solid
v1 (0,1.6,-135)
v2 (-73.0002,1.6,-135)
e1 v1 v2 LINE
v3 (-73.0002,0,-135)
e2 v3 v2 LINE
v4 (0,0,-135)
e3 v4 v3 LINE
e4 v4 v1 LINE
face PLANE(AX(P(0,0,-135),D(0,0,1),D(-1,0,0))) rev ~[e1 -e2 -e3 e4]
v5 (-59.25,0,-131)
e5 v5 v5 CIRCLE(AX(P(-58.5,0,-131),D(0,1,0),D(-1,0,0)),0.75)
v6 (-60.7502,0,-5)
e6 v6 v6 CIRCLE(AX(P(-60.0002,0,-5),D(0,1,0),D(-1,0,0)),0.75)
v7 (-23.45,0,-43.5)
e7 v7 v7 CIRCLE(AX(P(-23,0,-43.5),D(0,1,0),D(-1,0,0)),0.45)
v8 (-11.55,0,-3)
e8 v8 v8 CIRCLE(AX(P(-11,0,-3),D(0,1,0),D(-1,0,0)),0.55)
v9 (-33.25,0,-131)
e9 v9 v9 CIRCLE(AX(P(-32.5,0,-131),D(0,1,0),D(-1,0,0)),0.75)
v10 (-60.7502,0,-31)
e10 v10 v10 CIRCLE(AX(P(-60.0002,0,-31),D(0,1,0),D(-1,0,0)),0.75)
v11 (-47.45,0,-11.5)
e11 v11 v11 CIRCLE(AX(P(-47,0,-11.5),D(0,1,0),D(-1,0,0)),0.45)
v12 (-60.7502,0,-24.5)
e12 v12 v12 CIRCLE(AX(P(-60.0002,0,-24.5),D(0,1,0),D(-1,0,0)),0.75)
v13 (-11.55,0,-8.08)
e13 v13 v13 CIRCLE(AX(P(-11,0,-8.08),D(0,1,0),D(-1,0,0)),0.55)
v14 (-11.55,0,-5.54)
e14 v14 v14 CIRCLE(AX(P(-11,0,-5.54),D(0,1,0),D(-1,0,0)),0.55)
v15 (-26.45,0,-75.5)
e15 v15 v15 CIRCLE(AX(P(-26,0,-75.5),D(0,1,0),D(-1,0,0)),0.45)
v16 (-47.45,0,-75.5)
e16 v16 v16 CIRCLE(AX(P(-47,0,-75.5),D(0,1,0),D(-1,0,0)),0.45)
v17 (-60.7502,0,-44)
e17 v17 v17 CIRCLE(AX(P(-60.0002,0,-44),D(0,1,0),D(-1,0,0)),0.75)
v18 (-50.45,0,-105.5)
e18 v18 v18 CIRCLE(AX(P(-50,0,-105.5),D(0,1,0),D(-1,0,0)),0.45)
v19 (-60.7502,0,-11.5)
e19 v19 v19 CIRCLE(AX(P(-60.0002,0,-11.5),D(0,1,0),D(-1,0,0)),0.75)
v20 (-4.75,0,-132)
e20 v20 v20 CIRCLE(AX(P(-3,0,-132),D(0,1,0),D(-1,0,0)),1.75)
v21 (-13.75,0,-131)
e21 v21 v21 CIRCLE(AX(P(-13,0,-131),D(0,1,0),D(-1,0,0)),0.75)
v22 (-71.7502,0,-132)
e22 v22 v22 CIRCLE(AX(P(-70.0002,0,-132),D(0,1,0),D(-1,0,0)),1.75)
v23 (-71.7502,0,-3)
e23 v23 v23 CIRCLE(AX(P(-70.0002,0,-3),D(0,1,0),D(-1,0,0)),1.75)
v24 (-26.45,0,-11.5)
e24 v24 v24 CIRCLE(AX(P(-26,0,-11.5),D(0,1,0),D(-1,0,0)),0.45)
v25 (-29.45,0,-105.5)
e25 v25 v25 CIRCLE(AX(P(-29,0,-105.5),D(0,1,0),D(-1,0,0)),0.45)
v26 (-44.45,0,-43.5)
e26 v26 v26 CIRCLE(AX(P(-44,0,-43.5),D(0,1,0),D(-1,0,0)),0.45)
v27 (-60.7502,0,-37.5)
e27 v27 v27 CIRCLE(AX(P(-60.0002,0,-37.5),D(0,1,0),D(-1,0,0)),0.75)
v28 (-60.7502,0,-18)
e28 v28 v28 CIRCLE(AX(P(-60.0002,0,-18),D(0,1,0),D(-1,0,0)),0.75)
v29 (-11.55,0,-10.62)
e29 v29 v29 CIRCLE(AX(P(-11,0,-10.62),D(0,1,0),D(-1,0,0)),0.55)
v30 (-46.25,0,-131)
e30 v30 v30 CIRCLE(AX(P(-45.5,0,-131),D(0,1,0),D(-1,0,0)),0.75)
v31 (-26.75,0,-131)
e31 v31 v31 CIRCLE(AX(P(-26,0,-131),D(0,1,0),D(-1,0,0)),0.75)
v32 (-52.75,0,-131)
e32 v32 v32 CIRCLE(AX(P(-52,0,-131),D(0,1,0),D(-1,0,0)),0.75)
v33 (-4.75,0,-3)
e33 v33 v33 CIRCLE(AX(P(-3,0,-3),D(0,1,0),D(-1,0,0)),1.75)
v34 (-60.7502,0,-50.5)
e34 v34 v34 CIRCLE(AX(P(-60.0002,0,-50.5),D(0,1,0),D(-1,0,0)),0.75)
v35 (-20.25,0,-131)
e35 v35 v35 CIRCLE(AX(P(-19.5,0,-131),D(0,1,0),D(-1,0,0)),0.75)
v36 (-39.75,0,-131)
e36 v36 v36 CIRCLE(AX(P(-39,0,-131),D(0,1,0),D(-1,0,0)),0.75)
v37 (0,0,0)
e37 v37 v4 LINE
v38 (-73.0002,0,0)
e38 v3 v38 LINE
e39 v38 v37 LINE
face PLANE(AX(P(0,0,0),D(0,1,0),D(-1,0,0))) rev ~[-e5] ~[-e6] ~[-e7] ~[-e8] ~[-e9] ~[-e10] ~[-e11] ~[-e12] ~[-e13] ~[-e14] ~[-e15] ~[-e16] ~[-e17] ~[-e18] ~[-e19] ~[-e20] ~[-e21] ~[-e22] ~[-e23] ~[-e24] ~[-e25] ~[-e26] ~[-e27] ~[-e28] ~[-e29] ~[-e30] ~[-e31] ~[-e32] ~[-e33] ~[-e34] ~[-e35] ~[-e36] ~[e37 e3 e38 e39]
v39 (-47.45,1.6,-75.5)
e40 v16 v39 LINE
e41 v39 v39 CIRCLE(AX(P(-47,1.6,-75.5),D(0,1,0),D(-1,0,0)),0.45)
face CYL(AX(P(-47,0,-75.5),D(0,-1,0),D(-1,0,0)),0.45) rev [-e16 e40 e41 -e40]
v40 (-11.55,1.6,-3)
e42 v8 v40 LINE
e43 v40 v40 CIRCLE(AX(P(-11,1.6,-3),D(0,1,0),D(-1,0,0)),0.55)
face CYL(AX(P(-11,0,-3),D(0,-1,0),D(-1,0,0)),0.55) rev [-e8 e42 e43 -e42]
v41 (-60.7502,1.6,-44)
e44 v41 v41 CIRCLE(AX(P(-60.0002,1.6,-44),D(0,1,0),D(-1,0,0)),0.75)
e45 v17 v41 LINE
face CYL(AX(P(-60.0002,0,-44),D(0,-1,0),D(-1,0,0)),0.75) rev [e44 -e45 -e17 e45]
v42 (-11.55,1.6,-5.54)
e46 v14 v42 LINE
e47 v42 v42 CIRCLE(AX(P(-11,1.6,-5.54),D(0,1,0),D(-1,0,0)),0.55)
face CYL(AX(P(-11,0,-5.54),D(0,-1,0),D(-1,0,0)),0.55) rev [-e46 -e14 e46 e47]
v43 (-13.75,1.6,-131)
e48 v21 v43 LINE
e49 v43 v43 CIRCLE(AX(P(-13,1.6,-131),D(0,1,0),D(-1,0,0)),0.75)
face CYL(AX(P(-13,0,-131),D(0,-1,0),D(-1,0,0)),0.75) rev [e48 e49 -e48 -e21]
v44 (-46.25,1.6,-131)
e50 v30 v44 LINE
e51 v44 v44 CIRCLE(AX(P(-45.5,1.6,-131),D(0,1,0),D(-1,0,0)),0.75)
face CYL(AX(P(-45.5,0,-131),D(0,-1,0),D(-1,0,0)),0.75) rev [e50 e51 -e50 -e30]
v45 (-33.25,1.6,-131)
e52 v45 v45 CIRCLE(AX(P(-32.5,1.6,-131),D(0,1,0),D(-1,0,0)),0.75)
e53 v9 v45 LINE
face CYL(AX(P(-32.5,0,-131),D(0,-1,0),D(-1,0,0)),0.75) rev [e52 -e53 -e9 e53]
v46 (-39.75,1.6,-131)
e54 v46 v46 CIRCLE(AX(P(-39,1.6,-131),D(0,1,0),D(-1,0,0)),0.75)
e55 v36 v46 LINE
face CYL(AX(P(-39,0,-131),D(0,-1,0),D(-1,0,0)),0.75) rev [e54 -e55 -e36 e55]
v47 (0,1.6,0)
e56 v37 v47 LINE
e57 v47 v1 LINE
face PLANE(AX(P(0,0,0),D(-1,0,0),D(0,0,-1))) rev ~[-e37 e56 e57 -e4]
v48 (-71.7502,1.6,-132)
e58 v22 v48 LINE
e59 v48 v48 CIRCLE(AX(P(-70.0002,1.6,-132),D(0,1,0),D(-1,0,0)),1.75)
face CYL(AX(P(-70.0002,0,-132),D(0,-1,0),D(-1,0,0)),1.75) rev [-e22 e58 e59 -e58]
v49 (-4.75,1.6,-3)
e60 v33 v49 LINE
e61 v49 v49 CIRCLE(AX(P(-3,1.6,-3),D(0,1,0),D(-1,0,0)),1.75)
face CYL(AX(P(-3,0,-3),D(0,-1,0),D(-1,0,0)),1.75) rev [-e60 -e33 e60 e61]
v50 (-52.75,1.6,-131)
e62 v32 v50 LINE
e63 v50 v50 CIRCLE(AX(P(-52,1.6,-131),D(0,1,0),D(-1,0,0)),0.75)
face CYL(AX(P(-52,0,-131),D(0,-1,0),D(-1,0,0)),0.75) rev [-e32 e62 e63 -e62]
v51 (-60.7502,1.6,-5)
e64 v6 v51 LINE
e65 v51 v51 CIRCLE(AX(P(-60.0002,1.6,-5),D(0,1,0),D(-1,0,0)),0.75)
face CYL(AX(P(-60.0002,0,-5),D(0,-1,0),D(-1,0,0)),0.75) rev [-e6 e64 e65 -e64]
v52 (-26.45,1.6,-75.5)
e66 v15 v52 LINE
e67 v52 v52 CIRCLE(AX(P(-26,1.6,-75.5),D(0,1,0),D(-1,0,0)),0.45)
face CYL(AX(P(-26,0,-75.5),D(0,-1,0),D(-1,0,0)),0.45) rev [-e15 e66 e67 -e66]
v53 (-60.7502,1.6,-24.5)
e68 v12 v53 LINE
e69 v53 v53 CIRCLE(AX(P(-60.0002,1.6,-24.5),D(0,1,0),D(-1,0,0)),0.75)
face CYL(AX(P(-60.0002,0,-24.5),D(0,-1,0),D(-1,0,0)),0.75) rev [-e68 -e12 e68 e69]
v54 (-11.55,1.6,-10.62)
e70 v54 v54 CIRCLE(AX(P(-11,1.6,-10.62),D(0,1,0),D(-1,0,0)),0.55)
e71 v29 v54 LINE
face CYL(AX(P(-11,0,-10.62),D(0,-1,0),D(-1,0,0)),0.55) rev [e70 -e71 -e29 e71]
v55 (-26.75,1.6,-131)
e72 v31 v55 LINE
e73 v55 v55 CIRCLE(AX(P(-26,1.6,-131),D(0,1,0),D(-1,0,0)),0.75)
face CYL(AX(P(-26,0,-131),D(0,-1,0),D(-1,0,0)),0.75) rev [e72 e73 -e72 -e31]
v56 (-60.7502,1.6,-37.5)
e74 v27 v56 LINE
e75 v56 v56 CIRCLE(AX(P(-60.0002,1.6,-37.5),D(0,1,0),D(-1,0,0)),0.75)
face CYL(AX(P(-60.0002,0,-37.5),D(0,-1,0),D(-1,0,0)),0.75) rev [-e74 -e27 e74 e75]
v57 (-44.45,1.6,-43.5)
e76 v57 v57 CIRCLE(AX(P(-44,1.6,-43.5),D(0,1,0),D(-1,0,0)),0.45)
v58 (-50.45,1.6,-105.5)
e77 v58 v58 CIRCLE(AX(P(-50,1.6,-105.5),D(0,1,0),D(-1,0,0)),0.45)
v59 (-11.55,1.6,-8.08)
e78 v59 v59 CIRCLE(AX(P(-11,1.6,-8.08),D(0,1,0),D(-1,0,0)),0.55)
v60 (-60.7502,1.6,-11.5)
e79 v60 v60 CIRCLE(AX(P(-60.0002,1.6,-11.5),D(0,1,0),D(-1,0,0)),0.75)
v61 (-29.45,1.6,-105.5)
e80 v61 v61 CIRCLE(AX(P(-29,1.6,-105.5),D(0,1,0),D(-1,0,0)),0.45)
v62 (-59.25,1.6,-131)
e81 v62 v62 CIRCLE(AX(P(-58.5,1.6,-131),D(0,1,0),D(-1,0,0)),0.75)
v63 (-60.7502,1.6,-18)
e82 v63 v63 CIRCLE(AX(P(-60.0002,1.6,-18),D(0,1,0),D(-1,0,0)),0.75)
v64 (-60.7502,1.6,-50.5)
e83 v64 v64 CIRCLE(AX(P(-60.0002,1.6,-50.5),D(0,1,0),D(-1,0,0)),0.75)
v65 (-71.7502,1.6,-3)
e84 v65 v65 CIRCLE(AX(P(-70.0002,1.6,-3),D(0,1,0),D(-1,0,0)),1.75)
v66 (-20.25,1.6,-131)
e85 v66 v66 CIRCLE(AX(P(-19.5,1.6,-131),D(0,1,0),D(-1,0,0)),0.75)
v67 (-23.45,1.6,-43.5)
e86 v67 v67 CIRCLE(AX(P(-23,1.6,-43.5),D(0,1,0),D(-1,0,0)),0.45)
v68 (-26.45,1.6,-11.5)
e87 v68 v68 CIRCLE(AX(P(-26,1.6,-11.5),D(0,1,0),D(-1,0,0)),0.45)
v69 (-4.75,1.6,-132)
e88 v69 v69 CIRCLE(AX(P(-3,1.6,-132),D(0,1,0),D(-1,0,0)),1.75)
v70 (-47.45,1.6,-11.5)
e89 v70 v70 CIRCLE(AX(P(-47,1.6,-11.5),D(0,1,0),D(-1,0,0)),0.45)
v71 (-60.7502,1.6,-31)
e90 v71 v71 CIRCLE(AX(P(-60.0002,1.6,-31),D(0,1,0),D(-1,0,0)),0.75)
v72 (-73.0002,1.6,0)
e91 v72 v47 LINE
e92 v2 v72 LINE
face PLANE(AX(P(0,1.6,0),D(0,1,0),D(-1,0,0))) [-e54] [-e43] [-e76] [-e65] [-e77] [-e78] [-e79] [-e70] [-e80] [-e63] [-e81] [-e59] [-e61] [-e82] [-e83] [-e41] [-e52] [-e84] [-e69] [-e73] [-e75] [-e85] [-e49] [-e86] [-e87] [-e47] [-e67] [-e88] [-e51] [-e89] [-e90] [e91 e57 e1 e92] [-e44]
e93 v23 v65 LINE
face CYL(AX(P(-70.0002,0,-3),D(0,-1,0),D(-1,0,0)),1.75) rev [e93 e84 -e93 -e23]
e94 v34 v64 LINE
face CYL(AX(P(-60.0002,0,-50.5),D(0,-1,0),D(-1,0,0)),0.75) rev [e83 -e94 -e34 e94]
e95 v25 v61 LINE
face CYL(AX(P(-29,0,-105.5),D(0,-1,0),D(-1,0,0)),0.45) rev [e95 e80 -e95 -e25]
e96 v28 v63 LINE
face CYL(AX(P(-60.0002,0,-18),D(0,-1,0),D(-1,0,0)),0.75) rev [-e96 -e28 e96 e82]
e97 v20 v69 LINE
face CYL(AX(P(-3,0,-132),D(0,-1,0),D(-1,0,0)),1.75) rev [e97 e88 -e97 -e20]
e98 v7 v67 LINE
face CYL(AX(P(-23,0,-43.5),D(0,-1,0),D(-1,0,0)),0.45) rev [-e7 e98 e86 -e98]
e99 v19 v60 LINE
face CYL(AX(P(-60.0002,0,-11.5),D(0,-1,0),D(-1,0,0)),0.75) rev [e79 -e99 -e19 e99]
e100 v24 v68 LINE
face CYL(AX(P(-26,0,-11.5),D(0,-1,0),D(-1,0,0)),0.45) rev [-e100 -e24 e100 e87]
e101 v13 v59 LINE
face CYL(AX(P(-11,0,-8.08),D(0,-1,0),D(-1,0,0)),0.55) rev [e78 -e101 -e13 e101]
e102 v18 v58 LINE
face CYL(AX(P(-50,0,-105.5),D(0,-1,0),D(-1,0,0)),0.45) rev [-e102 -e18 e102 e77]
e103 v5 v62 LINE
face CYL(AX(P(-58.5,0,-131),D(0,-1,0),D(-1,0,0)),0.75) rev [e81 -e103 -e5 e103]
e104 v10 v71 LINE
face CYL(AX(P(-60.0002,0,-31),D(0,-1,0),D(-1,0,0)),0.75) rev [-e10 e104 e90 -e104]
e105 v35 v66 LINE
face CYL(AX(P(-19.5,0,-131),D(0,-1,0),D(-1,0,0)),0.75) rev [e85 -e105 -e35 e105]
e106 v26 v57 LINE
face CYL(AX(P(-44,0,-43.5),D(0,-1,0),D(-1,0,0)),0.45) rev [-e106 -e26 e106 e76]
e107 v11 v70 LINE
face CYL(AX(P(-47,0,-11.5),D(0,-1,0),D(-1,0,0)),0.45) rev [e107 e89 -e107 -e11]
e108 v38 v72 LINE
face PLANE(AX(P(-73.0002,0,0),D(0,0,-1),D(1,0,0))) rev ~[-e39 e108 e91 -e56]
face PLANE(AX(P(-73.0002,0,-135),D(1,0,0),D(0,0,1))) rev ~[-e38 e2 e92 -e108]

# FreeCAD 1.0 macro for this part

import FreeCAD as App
import Part
import Sketcher


def add_polygon(sketch, points):
    """Adds a closed chain of lines whose ends are joined by coincident constraints."""
    first, n = sketch.GeometryCount, len(points)
    for a, b in zip(points, points[1:] + points[:1]):
        sketch.addGeometry(Part.LineSegment(App.Vector(*a, 0), App.Vector(*b, 0)), False)
    for i in range(n):
        sketch.addConstraint(Sketcher.Constraint("Coincident", first + i, 2, first + (i + 1) % n, 1))

doc = App.newDocument("Part")
body = doc.addObject("PartDesign::Body", "Body")

sketch1 = body.newObject("Sketcher::SketchObject", "Sketch")
sketch1.AttachmentSupport = (doc.getObject("XZ_Plane"), [""])
sketch1.MapMode = "FlatFace"
add_polygon(sketch1, [(-73, 0), (0, 0), (0, -135), (-73, -135)])
sketch1.addGeometry(Part.Circle(App.Vector(-3, -132, 0), App.Vector(0, 0, 1), 1.75), False)
sketch1.addGeometry(Part.Circle(App.Vector(-13, -131, 0), App.Vector(0, 0, 1), 0.75), False)
sketch1.addGeometry(Part.Circle(App.Vector(-19.5, -131, 0), App.Vector(0, 0, 1), 0.75), False)
sketch1.addGeometry(Part.Circle(App.Vector(-26, -131, 0), App.Vector(0, 0, 1), 0.75), False)
sketch1.addGeometry(Part.Circle(App.Vector(-32.5, -131, 0), App.Vector(0, 0, 1), 0.75), False)
sketch1.addGeometry(Part.Circle(App.Vector(-29, -105.5, 0), App.Vector(0, 0, 1), 0.45), False)
sketch1.addGeometry(Part.Circle(App.Vector(-26, -75.5, 0), App.Vector(0, 0, 1), 0.45), False)
sketch1.addGeometry(Part.Circle(App.Vector(-39, -131, 0), App.Vector(0, 0, 1), 0.75), False)
sketch1.addGeometry(Part.Circle(App.Vector(-45.5, -131, 0), App.Vector(0, 0, 1), 0.75), False)
sketch1.addGeometry(Part.Circle(App.Vector(-52, -131, 0), App.Vector(0, 0, 1), 0.75), False)
sketch1.addGeometry(Part.Circle(App.Vector(-50, -105.5, 0), App.Vector(0, 0, 1), 0.45), False)
sketch1.addGeometry(Part.Circle(App.Vector(-58.5, -131, 0), App.Vector(0, 0, 1), 0.75), False)
sketch1.addGeometry(Part.Circle(App.Vector(-70, -132, 0), App.Vector(0, 0, 1), 1.75), False)
sketch1.addGeometry(Part.Circle(App.Vector(-47, -75.5, 0), App.Vector(0, 0, 1), 0.45), False)
sketch1.addGeometry(Part.Circle(App.Vector(-23, -43.5, 0), App.Vector(0, 0, 1), 0.45), False)
sketch1.addGeometry(Part.Circle(App.Vector(-3, -3, 0), App.Vector(0, 0, 1), 1.75), False)
sketch1.addGeometry(Part.Circle(App.Vector(-11, -10.62, 0), App.Vector(0, 0, 1), 0.55), False)
sketch1.addGeometry(Part.Circle(App.Vector(-11, -8.08, 0), App.Vector(0, 0, 1), 0.55), False)
sketch1.addGeometry(Part.Circle(App.Vector(-11, -5.54, 0), App.Vector(0, 0, 1), 0.55), False)
sketch1.addGeometry(Part.Circle(App.Vector(-11, -3, 0), App.Vector(0, 0, 1), 0.55), False)
sketch1.addGeometry(Part.Circle(App.Vector(-26, -11.5, 0), App.Vector(0, 0, 1), 0.45), False)
sketch1.addGeometry(Part.Circle(App.Vector(-44, -43.5, 0), App.Vector(0, 0, 1), 0.45), False)
sketch1.addGeometry(Part.Circle(App.Vector(-60, -50.5, 0), App.Vector(0, 0, 1), 0.75), False)
sketch1.addGeometry(Part.Circle(App.Vector(-60, -44, 0), App.Vector(0, 0, 1), 0.75), False)
sketch1.addGeometry(Part.Circle(App.Vector(-60, -37.5, 0), App.Vector(0, 0, 1), 0.75), False)
sketch1.addGeometry(Part.Circle(App.Vector(-47, -11.5, 0), App.Vector(0, 0, 1), 0.45), False)
sketch1.addGeometry(Part.Circle(App.Vector(-60, -31, 0), App.Vector(0, 0, 1), 0.75), False)
sketch1.addGeometry(Part.Circle(App.Vector(-60, -24.5, 0), App.Vector(0, 0, 1), 0.75), False)
sketch1.addGeometry(Part.Circle(App.Vector(-60, -18, 0), App.Vector(0, 0, 1), 0.75), False)
sketch1.addGeometry(Part.Circle(App.Vector(-60, -11.5, 0), App.Vector(0, 0, 1), 0.75), False)
sketch1.addGeometry(Part.Circle(App.Vector(-60, -5, 0), App.Vector(0, 0, 1), 0.75), False)
sketch1.addGeometry(Part.Circle(App.Vector(-70, -3, 0), App.Vector(0, 0, 1), 1.75), False)
sketch1.addConstraint(Sketcher.Constraint("Horizontal", 0))
sketch1.addConstraint(Sketcher.Constraint("Vertical", 1))
sketch1.addConstraint(Sketcher.Constraint("Horizontal", 2))
sketch1.addConstraint(Sketcher.Constraint("Vertical", 3))
sketch1.addConstraint(Sketcher.Constraint("Coincident", 0, 2, -1, 1))
sketch1.addConstraint(Sketcher.Constraint("Equal", 5, 6))
sketch1.addConstraint(Sketcher.Constraint("Equal", 6, 7))
sketch1.addConstraint(Sketcher.Constraint("Equal", 7, 8))
sketch1.addConstraint(Sketcher.Constraint("Equal", 9, 10))
sketch1.addConstraint(Sketcher.Constraint("Equal", 8, 11))
sketch1.addConstraint(Sketcher.Constraint("Equal", 11, 12))
sketch1.addConstraint(Sketcher.Constraint("Equal", 12, 13))
sketch1.addConstraint(Sketcher.Constraint("Equal", 10, 14))
sketch1.addConstraint(Sketcher.Constraint("Equal", 13, 15))
sketch1.addConstraint(Sketcher.Constraint("Equal", 4, 16))
sketch1.addConstraint(Sketcher.Constraint("Equal", 14, 17))
sketch1.addConstraint(Sketcher.Constraint("Equal", 17, 18))
sketch1.addConstraint(Sketcher.Constraint("Equal", 16, 19))
sketch1.addConstraint(Sketcher.Constraint("Equal", 20, 21))
sketch1.addConstraint(Sketcher.Constraint("Equal", 21, 22))
sketch1.addConstraint(Sketcher.Constraint("Equal", 22, 23))
sketch1.addConstraint(Sketcher.Constraint("Equal", 18, 24))
sketch1.addConstraint(Sketcher.Constraint("Equal", 24, 25))
sketch1.addConstraint(Sketcher.Constraint("Equal", 15, 26))
sketch1.addConstraint(Sketcher.Constraint("Equal", 26, 27))
sketch1.addConstraint(Sketcher.Constraint("Equal", 27, 28))
sketch1.addConstraint(Sketcher.Constraint("Equal", 25, 29))
sketch1.addConstraint(Sketcher.Constraint("Equal", 28, 30))
sketch1.addConstraint(Sketcher.Constraint("Equal", 30, 31))
sketch1.addConstraint(Sketcher.Constraint("Equal", 31, 32))
sketch1.addConstraint(Sketcher.Constraint("Equal", 32, 33))
sketch1.addConstraint(Sketcher.Constraint("Equal", 33, 34))
sketch1.addConstraint(Sketcher.Constraint("Equal", 19, 35))
sketch1.addConstraint(Sketcher.Constraint("Horizontal", 5, 3, 6, 3))
sketch1.addConstraint(Sketcher.Constraint("Horizontal", 6, 3, 7, 3))
sketch1.addConstraint(Sketcher.Constraint("Horizontal", 7, 3, 8, 3))
sketch1.addConstraint(Sketcher.Constraint("Horizontal", 8, 3, 11, 3))
sketch1.addConstraint(Sketcher.Constraint("Horizontal", 11, 3, 12, 3))
sketch1.addConstraint(Sketcher.Constraint("Horizontal", 12, 3, 13, 3))
sketch1.addConstraint(Sketcher.Constraint("Horizontal", 9, 3, 14, 3))
sketch1.addConstraint(Sketcher.Constraint("Horizontal", 13, 3, 15, 3))
sketch1.addConstraint(Sketcher.Constraint("Horizontal", 4, 3, 16, 3))
sketch1.addConstraint(Sketcher.Constraint("Horizontal", 10, 3, 17, 3))
sketch1.addConstraint(Sketcher.Constraint("Horizontal", 19, 3, 23, 3))
sketch1.addConstraint(Sketcher.Constraint("Horizontal", 18, 3, 25, 3))
sketch1.addConstraint(Sketcher.Constraint("Horizontal", 24, 3, 29, 3))
sketch1.addConstraint(Sketcher.Constraint("Horizontal", 29, 3, 33, 3))
sketch1.addConstraint(Sketcher.Constraint("Horizontal", 23, 3, 35, 3))
sketch1.addConstraint(Sketcher.Constraint("Vertical", 7, 3, 10, 3))
sketch1.addConstraint(Sketcher.Constraint("Vertical", 4, 3, 19, 3))
sketch1.addConstraint(Sketcher.Constraint("Vertical", 20, 3, 21, 3))
sketch1.addConstraint(Sketcher.Constraint("Vertical", 21, 3, 22, 3))
sketch1.addConstraint(Sketcher.Constraint("Vertical", 22, 3, 23, 3))
sketch1.addConstraint(Sketcher.Constraint("Vertical", 10, 3, 24, 3))
sketch1.addConstraint(Sketcher.Constraint("Vertical", 26, 3, 27, 3))
sketch1.addConstraint(Sketcher.Constraint("Vertical", 27, 3, 28, 3))
sketch1.addConstraint(Sketcher.Constraint("Vertical", 17, 3, 29, 3))
sketch1.addConstraint(Sketcher.Constraint("Vertical", 28, 3, 30, 3))
sketch1.addConstraint(Sketcher.Constraint("Vertical", 30, 3, 31, 3))
sketch1.addConstraint(Sketcher.Constraint("Vertical", 31, 3, 32, 3))
sketch1.addConstraint(Sketcher.Constraint("Vertical", 32, 3, 33, 3))
sketch1.addConstraint(Sketcher.Constraint("Vertical", 33, 3, 34, 3))
sketch1.addConstraint(Sketcher.Constraint("Vertical", 16, 3, 35, 3))
sketch1.addConstraint(Sketcher.Constraint("Diameter", 4, 3.5))
sketch1.addConstraint(Sketcher.Constraint("Diameter", 5, 1.5))
sketch1.addConstraint(Sketcher.Constraint("Diameter", 9, 0.9))
sketch1.addConstraint(Sketcher.Constraint("Diameter", 20, 1.1))
sketch1.addConstraint(Sketcher.Constraint("DistanceY", 1, 2, 1, 1, 135.0))
sketch1.addConstraint(Sketcher.Constraint("DistanceX", 4, 3, -1, 1, 3.0))
sketch1.addConstraint(Sketcher.Constraint("DistanceX", 5, 3, -1, 1, 13.0))
sketch1.addConstraint(Sketcher.Constraint("DistanceX", 7, 3, -1, 1, 26.0))
sketch1.addConstraint(Sketcher.Constraint("DistanceX", 9, 3, -1, 1, 29.0))
sketch1.addConstraint(Sketcher.Constraint("DistanceX", 14, 3, -1, 1, 50.0))
sketch1.addConstraint(Sketcher.Constraint("DistanceX", 18, 3, -1, 1, 23.0))
sketch1.addConstraint(Sketcher.Constraint("DistanceY", 19, 3, -1, 1, 3.0))
sketch1.addConstraint(Sketcher.Constraint("DistanceX", 20, 3, -1, 1, 11.0))
sketch1.addConstraint(Sketcher.Constraint("DistanceY", 34, 3, -1, 1, 5.0))
sketch1.addConstraint(Sketcher.Constraint("DistanceX", 8, 3, 6, 3, 13.0))
sketch1.addConstraint(Sketcher.Constraint("DistanceX", 11, 3, 7, 3, 13.0))
sketch1.addConstraint(Sketcher.Constraint("DistanceX", 12, 3, 8, 3, 13.0))
sketch1.addConstraint(Sketcher.Constraint("DistanceX", 13, 3, 11, 3, 13.0))
sketch1.addConstraint(Sketcher.Constraint("DistanceX", 15, 3, 12, 3, 13.0))
sketch1.addConstraint(Sketcher.Constraint("DistanceX", 17, 3, 10, 3, 21.0))
sketch1.addConstraint(Sketcher.Constraint("DistanceX", 25, 3, 18, 3, 21.0))
sketch1.addConstraint(Sketcher.Constraint("DistanceY", 26, 3, 28, 3, 13.0))
sketch1.addConstraint(Sketcher.Constraint("DistanceY", 28, 3, 29, 3, 26.0))
sketch1.addConstraint(Sketcher.Constraint("DistanceY", 27, 3, 30, 3, 13.0))
sketch1.addConstraint(Sketcher.Constraint("DistanceY", 28, 3, 31, 3, 13.0))
sketch1.addConstraint(Sketcher.Constraint("DistanceY", 30, 3, 32, 3, 13.0))
sketch1.addConstraint(Sketcher.Constraint("DistanceY", 32, 3, 34, 3, 13.0))
sketch1.addConstraint(Sketcher.Constraint("DistanceX", 35, 3, 34, 3, 10.0))
sketch1.addConstraint(Sketcher.Constraint("DistanceY", 1, 2, 4, 3, 3.0))
sketch1.addConstraint(Sketcher.Constraint("DistanceY", 1, 2, 5, 3, 4.0))
sketch1.addConstraint(Sketcher.Constraint("DistanceX", 2, 2, 16, 3, 3.0))
sketch1.addConstraint(Sketcher.Constraint("DistanceX", 6, 3, 5, 3, 6.5))
sketch1.addConstraint(Sketcher.Constraint("DistanceY", 26, 3, 27, 3, 6.5))
sketch1.addConstraint(Sketcher.Constraint("DistanceY", 20, 3, 21, 3, 2.54))
sketch1.addConstraint(Sketcher.Constraint("DistanceY", 21, 3, 22, 3, 2.54))
sketch1.addConstraint(Sketcher.Constraint("DistanceY", 22, 3, 19, 3, 2.54))
sketch1.addConstraint(Sketcher.Constraint("DistanceX", 0, 1, 0, 2, 73.0002))
sketch1.addConstraint(Sketcher.Constraint("DistanceY", 9, 3, 10, 3, 30.0))
sketch1.addConstraint(Sketcher.Constraint("DistanceY", 10, 3, 18, 3, 32.0))
sketch1.addConstraint(Sketcher.Constraint("DistanceY", 25, 3, 24, 3, 32.0))
pad1 = body.newObject("PartDesign::Pad", "Pad")
pad1.Profile = sketch1
pad1.Length = 1.6
pad1.Reversed = True

doc.recompute()
